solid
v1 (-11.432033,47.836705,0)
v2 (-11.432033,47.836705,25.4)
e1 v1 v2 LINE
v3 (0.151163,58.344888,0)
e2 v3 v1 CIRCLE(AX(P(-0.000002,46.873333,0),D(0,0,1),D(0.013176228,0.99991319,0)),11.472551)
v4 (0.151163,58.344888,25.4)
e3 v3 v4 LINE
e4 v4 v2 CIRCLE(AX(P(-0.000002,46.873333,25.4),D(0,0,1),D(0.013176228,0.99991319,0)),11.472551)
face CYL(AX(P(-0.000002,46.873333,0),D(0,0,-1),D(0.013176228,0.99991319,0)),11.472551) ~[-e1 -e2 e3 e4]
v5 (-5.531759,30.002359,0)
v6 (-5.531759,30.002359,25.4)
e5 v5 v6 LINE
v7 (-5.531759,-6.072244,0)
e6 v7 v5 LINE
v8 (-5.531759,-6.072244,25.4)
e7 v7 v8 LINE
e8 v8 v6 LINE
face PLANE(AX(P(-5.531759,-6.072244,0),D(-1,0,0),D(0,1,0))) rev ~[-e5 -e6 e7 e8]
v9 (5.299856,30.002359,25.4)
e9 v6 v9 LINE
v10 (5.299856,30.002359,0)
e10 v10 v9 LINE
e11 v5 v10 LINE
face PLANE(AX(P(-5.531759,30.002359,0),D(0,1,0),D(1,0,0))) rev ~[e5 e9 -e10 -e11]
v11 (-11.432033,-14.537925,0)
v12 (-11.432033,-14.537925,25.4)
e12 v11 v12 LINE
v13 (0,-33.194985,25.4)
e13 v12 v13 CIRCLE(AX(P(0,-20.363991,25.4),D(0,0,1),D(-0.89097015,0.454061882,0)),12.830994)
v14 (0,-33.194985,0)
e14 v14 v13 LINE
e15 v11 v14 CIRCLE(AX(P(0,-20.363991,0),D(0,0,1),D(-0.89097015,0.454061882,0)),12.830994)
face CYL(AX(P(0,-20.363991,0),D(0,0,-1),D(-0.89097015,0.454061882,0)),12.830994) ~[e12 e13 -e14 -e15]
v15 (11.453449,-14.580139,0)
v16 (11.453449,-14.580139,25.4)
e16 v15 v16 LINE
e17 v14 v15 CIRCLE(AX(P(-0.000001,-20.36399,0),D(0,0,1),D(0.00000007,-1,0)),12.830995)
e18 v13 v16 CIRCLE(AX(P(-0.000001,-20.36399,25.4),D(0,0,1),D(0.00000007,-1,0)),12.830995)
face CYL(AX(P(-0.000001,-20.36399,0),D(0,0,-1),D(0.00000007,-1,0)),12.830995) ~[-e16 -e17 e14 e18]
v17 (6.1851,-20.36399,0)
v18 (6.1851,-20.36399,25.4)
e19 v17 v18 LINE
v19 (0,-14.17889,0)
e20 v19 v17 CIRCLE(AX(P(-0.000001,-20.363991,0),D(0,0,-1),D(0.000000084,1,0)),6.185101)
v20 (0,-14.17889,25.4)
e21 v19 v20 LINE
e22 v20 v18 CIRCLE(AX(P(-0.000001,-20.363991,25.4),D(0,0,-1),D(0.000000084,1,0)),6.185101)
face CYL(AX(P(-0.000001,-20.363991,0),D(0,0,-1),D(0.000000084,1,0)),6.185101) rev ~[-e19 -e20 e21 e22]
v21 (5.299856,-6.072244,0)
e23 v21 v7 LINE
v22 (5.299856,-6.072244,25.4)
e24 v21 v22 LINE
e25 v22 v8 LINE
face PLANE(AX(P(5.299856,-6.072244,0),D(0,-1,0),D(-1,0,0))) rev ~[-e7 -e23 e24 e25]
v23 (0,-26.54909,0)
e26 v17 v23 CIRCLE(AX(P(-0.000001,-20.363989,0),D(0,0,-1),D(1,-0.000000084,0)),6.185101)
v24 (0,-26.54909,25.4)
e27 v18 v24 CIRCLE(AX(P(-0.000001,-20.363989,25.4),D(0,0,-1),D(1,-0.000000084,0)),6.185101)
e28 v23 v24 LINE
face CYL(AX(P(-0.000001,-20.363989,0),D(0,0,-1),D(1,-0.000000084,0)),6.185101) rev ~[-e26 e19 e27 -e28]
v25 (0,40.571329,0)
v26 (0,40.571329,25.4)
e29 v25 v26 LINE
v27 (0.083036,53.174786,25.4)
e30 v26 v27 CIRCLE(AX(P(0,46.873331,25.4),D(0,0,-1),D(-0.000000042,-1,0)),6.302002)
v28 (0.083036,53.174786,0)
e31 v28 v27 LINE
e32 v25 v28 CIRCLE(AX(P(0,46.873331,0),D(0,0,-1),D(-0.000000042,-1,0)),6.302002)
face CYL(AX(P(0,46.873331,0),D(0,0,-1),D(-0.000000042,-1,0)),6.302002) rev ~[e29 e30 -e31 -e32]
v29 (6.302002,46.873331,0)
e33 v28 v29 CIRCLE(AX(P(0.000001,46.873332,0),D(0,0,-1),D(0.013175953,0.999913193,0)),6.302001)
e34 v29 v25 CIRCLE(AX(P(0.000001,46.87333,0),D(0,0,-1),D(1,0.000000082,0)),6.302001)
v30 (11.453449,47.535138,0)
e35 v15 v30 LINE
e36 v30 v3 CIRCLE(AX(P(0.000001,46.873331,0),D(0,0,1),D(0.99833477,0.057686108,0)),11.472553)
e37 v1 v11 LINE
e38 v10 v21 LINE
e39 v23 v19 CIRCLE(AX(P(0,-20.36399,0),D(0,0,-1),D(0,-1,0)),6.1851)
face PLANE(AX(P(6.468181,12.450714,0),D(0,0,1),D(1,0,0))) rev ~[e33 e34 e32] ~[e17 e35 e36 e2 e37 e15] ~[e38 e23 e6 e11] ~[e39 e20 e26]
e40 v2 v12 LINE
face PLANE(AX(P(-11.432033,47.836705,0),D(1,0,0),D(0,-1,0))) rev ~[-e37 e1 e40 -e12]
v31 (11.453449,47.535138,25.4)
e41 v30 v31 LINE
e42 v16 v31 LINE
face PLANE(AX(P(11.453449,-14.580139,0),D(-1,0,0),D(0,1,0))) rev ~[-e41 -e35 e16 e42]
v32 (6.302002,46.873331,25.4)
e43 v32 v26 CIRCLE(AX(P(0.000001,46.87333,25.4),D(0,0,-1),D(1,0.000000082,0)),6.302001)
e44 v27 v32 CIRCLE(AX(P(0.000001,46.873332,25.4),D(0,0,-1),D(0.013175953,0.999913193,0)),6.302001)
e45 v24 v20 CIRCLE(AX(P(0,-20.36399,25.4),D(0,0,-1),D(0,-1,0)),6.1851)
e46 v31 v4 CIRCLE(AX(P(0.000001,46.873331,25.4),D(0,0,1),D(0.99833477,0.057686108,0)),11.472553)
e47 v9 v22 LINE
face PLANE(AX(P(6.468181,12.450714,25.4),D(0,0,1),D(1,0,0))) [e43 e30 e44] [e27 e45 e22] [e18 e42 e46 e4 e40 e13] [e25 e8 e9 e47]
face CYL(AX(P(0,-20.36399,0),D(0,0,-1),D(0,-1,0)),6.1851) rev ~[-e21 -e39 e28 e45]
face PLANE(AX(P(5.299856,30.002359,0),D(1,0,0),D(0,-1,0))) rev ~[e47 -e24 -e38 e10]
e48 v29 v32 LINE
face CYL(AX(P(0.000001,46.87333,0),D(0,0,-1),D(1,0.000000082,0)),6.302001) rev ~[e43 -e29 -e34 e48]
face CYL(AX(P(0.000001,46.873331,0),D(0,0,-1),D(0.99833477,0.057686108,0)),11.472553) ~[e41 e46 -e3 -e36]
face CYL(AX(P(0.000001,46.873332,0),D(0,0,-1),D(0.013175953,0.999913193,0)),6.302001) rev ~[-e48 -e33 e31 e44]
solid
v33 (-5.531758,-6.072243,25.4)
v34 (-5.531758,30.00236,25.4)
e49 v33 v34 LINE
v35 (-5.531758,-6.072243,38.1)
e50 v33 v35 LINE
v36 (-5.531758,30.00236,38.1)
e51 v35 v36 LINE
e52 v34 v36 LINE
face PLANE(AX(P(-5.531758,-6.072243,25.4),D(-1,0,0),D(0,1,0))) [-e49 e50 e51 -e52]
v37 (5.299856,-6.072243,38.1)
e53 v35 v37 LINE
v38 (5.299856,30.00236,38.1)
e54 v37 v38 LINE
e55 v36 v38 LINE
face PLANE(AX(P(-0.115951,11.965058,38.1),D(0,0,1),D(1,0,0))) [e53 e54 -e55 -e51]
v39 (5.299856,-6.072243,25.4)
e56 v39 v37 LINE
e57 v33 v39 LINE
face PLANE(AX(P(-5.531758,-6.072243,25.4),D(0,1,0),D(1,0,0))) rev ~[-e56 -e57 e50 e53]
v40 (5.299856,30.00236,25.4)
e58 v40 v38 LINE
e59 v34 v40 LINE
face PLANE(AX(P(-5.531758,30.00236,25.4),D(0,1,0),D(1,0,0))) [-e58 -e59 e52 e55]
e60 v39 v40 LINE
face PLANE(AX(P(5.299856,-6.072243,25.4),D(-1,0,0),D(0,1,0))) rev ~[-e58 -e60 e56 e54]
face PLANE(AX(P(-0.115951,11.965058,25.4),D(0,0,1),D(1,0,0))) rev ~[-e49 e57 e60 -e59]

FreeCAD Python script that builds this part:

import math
import FreeCAD as App
import Part
import Sketcher
Q = App.Units.Quantity


def add_polygon(sketch, points):
    """Adds a closed chain of lines whose ends are joined by coincident constraints."""
    first, n = sketch.GeometryCount, len(points)
    for a, b in zip(points, points[1:] + points[:1]):
        sketch.addGeometry(Part.LineSegment(App.Vector(*a, 0), App.Vector(*b, 0)), False)
    for i in range(n):
        sketch.addConstraint(Sketcher.Constraint("Coincident", first + i, 2, first + (i + 1) % n, 1))

doc = App.newDocument("Part")
params = doc.addObject("Spreadsheet::Sheet", "Params")
for row, (alias, value) in enumerate([
    ("pad1_length", "1 in"),
    ("pad2_length", "0.5 in"),
], start=1):
    params.set(f"A{row}", alias)
    params.set(f"B{row}", "=" + value)
    params.setAlias(f"B{row}", alias)

body = doc.addObject("PartDesign::Body", "Body")

sketch1 = body.newObject("Sketcher::SketchObject", "Sketch")
sketch1.AttachmentSupport = (doc.getObject("XY_Plane"), [""])
sketch1.MapMode = "FlatFace"
sketch1.addGeometry(Part.LineSegment(App.Vector(11, -15, 0), App.Vector(11, 48, 0)), False)
sketch1.addGeometry(Part.ArcOfCircle(Part.Circle(App.Vector(0, 47, 0), App.Vector(0, 0, 1), 11), math.radians(3), math.radians(89)), False)
sketch1.addGeometry(Part.ArcOfCircle(Part.Circle(App.Vector(0, 47, 0), App.Vector(0, 0, 1), 11), math.radians(89), math.radians(175)), False)
sketch1.addGeometry(Part.LineSegment(App.Vector(-11, 48, 0), App.Vector(-11, -15, 0)), False)
sketch1.addGeometry(Part.ArcOfCircle(Part.Circle(App.Vector(0, -20, 0), App.Vector(0, 0, 1), 13), math.radians(153), math.radians(270)), False)
sketch1.addGeometry(Part.ArcOfCircle(Part.Circle(App.Vector(0, -20, 0), App.Vector(0, 0, 1), 13), math.radians(-90), math.radians(27)), False)
sketch1.addGeometry(Part.ArcOfCircle(Part.Circle(App.Vector(0, 47, 0), App.Vector(0, 0, 1), 6), math.radians(0), math.radians(89)), False)
sketch1.addGeometry(Part.ArcOfCircle(Part.Circle(App.Vector(0, 47, 0), App.Vector(0, 0, 1), 6), math.radians(-90), math.radians(0)), False)
sketch1.addGeometry(Part.ArcOfCircle(Part.Circle(App.Vector(0, 47, 0), App.Vector(0, 0, 1), 6), math.radians(89), math.radians(270)), False)
add_polygon(sketch1, [(5, 30), (5, -6), (-6, -6), (-6, 30)])
sketch1.addGeometry(Part.ArcOfCircle(Part.Circle(App.Vector(0, -20, 0), App.Vector(0, 0, 1), 6), math.radians(0), math.radians(90)), False)
sketch1.addGeometry(Part.ArcOfCircle(Part.Circle(App.Vector(0, -20, 0), App.Vector(0, 0, 1), 6), math.radians(-90), math.radians(0)), False)
sketch1.addGeometry(Part.ArcOfCircle(Part.Circle(App.Vector(0, -20, 0), App.Vector(0, 0, 1), 6), math.radians(90), math.radians(270)), False)
sketch1.addConstraint([
    Sketcher.Constraint("Coincident", 0, 2, 1, 1),
    Sketcher.Constraint("Tangent", 1, 2, 2, 1),
    Sketcher.Constraint("Coincident", 2, 2, 3, 1),
    Sketcher.Constraint("Coincident", 3, 2, 4, 1),
    Sketcher.Constraint("Tangent", 4, 2, 5, 1),
    Sketcher.Constraint("Coincident", 5, 2, 0, 1),
    Sketcher.Constraint("Tangent", 6, 1, 7, 2),
    Sketcher.Constraint("Tangent", 7, 1, 8, 2),
    Sketcher.Constraint("Tangent", 8, 1, 6, 2),
    Sketcher.Constraint("Tangent", 13, 1, 14, 2),
    Sketcher.Constraint("Tangent", 14, 1, 15, 2),
    Sketcher.Constraint("Tangent", 15, 1, 13, 2),
    Sketcher.Constraint("Vertical", 0),
    Sketcher.Constraint("Vertical", 3),
    Sketcher.Constraint("Vertical", 9),
    Sketcher.Constraint("Horizontal", 10),
    Sketcher.Constraint("Vertical", 11),
    Sketcher.Constraint("Horizontal", 12),
    Sketcher.Constraint("Coincident", 6, 3, 1, 3),
    Sketcher.Constraint("Coincident", 13, 3, 4, 3),
    Sketcher.Constraint("Equal", 4, 5),
    Sketcher.Constraint("PointOnObject", 1, 3, -2),
    Sketcher.Constraint("PointOnObject", 2, 3, -2),
    Sketcher.Constraint("PointOnObject", 4, 3, -2),
    Sketcher.Constraint("PointOnObject", 4, 2, -2),
    Sketcher.Constraint("PointOnObject", 7, 1, -2),
    Sketcher.Constraint("PointOnObject", 14, 1, -2),
    Sketcher.Constraint("PointOnObject", 15, 1, -2),
    Sketcher.Constraint("Horizontal", 8, 3, 6, 1),
    Sketcher.Constraint("Horizontal", 15, 3, 13, 1),
    Sketcher.Constraint("Radius", 6, Q("6.302001 mm")),
    Sketcher.Constraint("Radius", 13, Q("6.185101 mm")),
    Sketcher.Constraint("Radius", 2, Q("11.472551 mm")),
    Sketcher.Constraint("Radius", 4, Q("12.830994 mm")),
    Sketcher.Constraint("DistanceY", 3, 2, 3, 1, Q("62.37463 mm")),
    Sketcher.Constraint("DistanceX", 10, 2, 10, 1, Q("10.831615 mm")),
    Sketcher.Constraint("DistanceY", 0, 1, 0, 2, Q("62.115277 mm")),
    Sketcher.Constraint("DistanceY", 9, 2, 9, 1, Q("36.074603 mm")),
    Sketcher.Constraint("DistanceY", -1, 1, 1, 3, Q("46.873331 mm")),
    Sketcher.Constraint("DistanceY", 4, 3, -1, 1, Q("20.363991 mm")),
    Sketcher.Constraint("DistanceX", 10, 2, -1, 1, Q("5.531759 mm")),
    Sketcher.Constraint("DistanceY", -1, 1, 11, 2, Q("30.002359 mm")),
    Sketcher.Constraint("DistanceX", 6, 3, 1, 2, Q("0.151162 mm")),
    Sketcher.Constraint("DistanceX", -1, 1, 8, 1, Q("0.083036 mm")),
])
pad1 = body.newObject("PartDesign::Pad", "Pad")
pad1.Profile = sketch1
pad1.setExpression("Length", "Params.pad1_length")
body2 = doc.addObject("PartDesign::Body", "Body001")

sketch2 = body2.newObject("Sketcher::SketchObject", "Sketch001")
sketch2.AttachmentSupport = (doc.getObject("XY_Plane001"), [""])
sketch2.MapMode = "FlatFace"
sketch2.AttachmentOffset = App.Placement(App.Vector(0, 0, 1 * 25.4), App.Rotation())
add_polygon(sketch2, [(-6, 30), (-6, -6), (5, -6), (5, 30)])
sketch2.addConstraint([
    Sketcher.Constraint("Vertical", 0),
    Sketcher.Constraint("Horizontal", 1),
    Sketcher.Constraint("Vertical", 2),
    Sketcher.Constraint("Horizontal", 3),
    Sketcher.Constraint("DistanceX", 1, 1, 1, 2, Q("10.831615 mm")),
    Sketcher.Constraint("DistanceY", 0, 2, 0, 1, Q("36.074603 mm")),
    Sketcher.Constraint("DistanceX", 0, 2, -1, 1, Q("5.531758 mm")),
    Sketcher.Constraint("DistanceY", -1, 1, 2, 2, Q("30.00236 mm")),
])
pad2 = body2.newObject("PartDesign::Pad", "Pad001")
pad2.Profile = sketch2
pad2.setExpression("Length", "Params.pad2_length")

doc.recompute()
